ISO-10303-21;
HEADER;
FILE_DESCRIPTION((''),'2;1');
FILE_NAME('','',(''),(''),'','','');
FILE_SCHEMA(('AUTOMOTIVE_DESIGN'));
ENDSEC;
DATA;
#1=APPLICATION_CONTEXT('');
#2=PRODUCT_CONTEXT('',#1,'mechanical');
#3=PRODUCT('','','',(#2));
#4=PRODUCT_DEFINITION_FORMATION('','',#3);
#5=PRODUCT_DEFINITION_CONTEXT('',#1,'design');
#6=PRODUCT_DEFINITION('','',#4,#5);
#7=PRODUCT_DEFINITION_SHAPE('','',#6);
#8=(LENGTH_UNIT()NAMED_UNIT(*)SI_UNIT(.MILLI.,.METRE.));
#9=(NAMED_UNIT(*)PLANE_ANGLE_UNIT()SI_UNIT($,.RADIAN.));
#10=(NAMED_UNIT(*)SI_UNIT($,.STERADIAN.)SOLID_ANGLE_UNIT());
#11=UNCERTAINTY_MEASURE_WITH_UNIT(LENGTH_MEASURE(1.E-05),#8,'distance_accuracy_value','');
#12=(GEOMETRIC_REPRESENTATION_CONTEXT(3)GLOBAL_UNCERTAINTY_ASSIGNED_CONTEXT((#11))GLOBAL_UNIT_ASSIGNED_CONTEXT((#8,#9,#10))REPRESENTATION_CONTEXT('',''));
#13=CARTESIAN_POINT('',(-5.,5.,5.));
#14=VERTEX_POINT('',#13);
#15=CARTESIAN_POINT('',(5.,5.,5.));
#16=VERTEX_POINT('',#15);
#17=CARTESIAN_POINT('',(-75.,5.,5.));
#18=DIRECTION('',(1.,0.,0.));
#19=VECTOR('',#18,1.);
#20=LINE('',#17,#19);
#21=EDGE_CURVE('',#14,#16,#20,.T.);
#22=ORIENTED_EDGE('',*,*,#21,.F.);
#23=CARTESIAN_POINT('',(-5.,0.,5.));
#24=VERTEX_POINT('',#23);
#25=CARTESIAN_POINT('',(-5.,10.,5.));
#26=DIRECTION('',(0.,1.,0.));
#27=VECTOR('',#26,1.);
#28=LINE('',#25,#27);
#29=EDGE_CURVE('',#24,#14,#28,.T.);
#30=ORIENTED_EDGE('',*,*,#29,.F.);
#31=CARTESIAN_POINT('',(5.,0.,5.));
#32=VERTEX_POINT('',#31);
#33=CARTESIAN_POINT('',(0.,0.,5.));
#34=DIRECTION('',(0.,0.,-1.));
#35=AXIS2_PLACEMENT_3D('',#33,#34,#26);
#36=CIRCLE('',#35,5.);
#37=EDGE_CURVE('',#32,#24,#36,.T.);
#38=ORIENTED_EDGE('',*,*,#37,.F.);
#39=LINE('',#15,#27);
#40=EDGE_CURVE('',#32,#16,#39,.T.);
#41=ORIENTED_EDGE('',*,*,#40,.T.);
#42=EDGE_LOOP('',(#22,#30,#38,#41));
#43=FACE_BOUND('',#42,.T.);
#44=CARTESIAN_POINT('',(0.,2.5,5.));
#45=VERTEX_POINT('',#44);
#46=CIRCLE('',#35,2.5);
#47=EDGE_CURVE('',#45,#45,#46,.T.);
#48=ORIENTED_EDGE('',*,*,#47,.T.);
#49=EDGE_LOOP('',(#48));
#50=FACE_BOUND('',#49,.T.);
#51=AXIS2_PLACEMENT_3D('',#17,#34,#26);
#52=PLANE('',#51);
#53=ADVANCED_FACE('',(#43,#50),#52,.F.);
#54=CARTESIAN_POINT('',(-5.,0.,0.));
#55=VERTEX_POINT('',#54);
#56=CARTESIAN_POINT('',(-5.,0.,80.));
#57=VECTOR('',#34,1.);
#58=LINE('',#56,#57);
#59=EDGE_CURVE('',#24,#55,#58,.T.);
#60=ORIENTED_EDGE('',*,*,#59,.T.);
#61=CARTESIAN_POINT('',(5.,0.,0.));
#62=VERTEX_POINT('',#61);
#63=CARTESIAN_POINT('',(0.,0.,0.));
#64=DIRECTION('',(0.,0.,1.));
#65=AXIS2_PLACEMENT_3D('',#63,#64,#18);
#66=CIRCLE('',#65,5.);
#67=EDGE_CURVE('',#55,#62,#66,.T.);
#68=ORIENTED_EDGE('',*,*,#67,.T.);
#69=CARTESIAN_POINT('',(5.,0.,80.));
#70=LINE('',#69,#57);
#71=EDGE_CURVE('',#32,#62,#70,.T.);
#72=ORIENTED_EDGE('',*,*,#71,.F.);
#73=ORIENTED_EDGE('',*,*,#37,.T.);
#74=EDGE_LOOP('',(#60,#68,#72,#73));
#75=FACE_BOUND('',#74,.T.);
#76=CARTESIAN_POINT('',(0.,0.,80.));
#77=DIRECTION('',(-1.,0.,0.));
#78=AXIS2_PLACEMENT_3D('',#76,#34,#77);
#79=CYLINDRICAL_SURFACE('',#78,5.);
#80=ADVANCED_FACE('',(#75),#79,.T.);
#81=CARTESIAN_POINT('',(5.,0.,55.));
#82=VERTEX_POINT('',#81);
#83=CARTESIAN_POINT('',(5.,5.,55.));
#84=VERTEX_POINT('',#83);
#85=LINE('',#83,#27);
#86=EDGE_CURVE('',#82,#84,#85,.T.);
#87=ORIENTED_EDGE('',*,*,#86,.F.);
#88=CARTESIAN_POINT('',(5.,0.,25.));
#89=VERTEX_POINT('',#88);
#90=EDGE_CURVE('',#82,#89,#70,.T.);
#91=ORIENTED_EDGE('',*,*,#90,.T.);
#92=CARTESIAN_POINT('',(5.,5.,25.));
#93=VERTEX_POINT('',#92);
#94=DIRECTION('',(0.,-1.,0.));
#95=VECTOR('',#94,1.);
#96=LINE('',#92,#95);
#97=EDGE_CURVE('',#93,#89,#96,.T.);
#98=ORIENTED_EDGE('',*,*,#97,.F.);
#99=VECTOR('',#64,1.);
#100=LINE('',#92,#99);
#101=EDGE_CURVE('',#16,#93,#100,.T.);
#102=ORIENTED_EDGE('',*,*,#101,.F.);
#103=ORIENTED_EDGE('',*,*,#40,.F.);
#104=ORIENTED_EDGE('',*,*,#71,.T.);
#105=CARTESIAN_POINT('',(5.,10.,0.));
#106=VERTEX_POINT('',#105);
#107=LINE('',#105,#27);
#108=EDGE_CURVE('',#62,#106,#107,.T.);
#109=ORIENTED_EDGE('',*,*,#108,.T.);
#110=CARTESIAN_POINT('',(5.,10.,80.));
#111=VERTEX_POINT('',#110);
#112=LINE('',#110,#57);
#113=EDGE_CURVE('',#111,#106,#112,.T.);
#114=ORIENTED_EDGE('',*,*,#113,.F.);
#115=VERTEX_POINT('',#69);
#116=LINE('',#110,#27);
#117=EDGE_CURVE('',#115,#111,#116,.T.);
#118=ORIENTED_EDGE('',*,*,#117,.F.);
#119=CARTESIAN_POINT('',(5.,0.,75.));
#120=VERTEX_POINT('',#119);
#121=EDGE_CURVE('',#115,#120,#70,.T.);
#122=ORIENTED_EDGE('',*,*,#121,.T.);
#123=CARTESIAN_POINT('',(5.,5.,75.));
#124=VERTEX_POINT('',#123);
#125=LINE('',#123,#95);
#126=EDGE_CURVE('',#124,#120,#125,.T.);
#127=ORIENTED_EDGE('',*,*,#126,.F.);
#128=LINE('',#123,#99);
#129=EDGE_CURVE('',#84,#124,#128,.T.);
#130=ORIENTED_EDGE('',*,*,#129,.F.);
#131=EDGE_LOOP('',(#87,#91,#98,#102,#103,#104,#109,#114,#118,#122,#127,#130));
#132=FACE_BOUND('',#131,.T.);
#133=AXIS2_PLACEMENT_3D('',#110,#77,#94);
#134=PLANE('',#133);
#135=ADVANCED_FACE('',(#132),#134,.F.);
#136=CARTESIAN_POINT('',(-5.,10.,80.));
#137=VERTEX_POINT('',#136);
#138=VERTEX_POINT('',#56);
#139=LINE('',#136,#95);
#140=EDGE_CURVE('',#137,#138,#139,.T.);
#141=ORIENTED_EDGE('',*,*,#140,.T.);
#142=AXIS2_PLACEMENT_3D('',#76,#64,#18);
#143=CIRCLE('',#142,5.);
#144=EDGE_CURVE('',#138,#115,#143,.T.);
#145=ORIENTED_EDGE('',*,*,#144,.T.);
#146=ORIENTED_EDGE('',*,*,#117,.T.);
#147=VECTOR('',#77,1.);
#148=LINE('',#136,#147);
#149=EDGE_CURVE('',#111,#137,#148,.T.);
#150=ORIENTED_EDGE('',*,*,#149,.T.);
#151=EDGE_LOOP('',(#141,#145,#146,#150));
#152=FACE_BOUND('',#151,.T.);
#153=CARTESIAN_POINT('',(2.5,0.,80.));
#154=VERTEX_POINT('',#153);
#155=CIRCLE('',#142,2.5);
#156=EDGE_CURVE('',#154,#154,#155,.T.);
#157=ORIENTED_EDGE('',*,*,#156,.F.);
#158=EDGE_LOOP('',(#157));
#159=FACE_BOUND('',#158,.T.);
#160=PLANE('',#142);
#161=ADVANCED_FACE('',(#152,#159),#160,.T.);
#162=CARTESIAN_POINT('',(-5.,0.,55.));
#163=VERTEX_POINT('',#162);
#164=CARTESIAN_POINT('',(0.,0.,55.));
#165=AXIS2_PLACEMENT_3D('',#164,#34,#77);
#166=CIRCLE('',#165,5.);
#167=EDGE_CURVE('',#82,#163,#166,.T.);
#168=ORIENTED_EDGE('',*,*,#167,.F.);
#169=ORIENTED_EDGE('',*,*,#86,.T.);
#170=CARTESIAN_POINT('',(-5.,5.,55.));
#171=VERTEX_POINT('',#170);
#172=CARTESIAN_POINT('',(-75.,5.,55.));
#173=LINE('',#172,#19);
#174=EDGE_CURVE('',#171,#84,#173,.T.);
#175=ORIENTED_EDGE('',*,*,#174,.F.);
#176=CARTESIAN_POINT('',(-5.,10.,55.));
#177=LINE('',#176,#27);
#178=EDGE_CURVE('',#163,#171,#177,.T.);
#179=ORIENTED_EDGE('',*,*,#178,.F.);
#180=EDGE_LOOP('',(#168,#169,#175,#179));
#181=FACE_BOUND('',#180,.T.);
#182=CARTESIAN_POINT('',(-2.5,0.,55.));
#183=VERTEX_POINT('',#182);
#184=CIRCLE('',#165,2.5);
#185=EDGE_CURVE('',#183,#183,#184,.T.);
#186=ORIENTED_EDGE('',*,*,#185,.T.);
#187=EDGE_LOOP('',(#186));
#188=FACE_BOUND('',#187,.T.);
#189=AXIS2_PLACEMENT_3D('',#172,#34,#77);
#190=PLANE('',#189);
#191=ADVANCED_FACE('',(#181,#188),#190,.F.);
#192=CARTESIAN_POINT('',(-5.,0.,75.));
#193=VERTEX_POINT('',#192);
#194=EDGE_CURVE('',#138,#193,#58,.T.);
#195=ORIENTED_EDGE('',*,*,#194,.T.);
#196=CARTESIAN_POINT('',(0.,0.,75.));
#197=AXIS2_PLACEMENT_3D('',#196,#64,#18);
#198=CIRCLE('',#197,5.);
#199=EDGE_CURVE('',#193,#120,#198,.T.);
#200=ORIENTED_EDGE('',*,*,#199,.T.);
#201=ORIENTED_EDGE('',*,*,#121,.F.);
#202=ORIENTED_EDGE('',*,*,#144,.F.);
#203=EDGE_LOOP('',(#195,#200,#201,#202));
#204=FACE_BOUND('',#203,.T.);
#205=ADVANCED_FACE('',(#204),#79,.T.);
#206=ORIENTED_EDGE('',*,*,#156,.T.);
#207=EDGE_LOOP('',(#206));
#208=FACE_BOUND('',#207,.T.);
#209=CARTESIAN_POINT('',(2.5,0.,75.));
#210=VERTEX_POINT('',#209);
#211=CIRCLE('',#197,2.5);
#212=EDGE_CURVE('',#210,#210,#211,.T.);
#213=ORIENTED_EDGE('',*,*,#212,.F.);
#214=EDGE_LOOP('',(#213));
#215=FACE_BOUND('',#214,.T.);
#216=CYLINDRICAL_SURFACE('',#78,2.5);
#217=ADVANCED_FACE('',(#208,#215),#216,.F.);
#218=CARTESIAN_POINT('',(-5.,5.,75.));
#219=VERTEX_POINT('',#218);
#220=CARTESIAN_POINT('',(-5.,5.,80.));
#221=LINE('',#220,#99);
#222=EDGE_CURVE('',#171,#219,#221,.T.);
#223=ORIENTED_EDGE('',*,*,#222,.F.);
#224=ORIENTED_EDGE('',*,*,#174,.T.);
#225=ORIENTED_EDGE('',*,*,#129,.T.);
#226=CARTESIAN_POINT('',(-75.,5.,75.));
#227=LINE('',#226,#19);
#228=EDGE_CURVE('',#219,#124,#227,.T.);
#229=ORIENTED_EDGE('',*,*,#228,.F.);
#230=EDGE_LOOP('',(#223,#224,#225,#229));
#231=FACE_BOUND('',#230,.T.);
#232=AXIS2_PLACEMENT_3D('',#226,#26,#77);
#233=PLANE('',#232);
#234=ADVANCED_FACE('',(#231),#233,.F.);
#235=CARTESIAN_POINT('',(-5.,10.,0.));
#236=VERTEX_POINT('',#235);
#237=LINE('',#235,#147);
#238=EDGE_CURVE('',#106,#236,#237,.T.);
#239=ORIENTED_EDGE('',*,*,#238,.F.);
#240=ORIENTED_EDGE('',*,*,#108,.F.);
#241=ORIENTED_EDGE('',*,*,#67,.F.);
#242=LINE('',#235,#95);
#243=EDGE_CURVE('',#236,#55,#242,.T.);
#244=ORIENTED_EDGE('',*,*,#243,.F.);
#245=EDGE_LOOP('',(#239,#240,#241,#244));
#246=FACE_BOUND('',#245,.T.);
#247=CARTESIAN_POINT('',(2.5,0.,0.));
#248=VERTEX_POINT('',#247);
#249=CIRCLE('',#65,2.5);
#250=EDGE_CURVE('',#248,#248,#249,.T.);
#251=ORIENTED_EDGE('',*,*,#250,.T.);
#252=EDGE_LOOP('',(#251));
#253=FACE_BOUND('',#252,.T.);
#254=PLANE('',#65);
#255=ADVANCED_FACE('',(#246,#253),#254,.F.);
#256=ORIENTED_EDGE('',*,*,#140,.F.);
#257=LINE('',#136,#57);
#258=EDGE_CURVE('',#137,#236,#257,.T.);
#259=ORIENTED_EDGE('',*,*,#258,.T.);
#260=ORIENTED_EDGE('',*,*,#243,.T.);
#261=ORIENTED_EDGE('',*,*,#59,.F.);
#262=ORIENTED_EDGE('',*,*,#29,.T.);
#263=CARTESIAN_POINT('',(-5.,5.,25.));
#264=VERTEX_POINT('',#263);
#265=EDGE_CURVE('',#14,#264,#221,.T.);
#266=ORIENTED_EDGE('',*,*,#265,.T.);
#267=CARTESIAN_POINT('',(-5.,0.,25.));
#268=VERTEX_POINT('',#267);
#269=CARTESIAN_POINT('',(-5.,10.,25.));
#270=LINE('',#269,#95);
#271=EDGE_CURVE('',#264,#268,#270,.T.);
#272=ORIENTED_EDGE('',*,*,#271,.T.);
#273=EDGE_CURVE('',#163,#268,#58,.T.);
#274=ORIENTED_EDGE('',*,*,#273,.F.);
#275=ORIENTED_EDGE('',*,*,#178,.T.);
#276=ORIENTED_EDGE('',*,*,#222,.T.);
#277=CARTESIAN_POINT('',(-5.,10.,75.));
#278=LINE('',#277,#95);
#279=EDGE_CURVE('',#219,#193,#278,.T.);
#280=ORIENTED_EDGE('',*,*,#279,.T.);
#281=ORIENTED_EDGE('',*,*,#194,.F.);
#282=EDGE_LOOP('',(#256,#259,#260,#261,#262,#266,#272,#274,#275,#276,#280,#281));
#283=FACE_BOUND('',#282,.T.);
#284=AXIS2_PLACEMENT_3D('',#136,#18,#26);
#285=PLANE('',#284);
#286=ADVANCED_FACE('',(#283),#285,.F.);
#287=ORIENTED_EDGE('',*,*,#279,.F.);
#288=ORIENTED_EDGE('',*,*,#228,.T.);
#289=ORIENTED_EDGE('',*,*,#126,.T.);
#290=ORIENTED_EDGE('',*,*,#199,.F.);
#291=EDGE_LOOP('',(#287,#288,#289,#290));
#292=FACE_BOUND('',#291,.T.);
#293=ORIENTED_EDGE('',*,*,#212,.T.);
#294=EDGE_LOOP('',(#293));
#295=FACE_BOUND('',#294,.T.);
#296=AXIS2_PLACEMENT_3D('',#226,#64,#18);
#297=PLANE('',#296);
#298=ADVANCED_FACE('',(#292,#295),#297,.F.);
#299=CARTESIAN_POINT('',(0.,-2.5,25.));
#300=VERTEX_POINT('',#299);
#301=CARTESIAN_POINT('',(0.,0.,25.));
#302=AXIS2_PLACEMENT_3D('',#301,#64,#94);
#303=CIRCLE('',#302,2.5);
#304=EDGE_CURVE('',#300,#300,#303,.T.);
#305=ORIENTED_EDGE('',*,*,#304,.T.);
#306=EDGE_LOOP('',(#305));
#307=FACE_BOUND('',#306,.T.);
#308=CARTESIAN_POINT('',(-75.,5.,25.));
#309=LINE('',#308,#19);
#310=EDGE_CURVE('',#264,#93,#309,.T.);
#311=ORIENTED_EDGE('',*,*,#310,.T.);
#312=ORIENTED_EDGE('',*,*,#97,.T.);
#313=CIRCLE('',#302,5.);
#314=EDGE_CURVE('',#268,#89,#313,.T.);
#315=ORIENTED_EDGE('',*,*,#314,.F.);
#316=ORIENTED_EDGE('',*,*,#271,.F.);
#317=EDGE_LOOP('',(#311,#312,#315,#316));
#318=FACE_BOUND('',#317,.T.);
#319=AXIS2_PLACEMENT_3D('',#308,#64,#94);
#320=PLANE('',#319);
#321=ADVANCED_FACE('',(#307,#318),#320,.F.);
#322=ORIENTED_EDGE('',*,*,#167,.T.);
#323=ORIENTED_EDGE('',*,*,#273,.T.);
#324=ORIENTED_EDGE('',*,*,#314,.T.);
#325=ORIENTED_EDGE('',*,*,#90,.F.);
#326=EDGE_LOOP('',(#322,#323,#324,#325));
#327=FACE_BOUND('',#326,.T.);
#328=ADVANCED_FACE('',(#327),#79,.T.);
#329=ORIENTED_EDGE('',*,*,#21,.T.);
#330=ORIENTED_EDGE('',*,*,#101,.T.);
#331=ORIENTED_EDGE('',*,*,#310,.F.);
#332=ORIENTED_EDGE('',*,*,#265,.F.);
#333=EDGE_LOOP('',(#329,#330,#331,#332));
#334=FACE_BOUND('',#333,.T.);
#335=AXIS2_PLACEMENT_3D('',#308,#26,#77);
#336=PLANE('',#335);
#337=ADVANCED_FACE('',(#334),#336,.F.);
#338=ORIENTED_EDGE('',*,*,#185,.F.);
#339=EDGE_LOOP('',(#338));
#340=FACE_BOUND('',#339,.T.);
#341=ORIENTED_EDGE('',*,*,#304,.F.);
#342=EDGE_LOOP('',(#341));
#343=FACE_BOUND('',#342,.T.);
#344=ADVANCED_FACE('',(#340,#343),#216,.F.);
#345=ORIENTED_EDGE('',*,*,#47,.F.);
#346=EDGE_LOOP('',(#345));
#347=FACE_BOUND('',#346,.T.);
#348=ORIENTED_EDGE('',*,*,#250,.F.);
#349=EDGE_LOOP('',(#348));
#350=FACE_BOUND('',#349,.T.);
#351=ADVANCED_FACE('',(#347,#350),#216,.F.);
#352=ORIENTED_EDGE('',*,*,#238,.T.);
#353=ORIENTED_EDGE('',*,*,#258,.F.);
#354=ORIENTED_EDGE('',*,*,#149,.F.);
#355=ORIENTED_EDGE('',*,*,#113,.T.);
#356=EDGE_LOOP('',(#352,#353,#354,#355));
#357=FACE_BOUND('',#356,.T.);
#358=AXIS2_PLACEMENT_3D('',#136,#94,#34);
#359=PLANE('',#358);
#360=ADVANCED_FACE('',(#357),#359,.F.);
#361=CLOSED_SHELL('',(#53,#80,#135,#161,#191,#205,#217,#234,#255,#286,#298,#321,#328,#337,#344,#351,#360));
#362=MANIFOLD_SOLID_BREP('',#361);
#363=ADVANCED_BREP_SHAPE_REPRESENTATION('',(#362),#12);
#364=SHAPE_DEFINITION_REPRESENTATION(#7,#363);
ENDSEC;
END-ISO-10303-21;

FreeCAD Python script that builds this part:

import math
import FreeCAD as App
import Part
import Sketcher

V = App.Vector

doc = App.newDocument("Part")
body = doc.addObject("PartDesign::Body", "Body")

sketch1 = doc.addObject("Sketcher::SketchObject", "Sketch")
body.addObject(sketch1)
sketch1.AttachmentSupport = (doc.XY_Plane, [""])
sketch1.MapMode = "FlatFace"
sketch1.addGeometry(Part.LineSegment(V(5, 10, 0), V(-5, 10, 0)), False)
sketch1.addGeometry(Part.LineSegment(V(-5, 10, 0), V(-5, 0, 0)), False)
sketch1.addGeometry(Part.ArcOfCircle(Part.Circle(V(0, 0, 0), V(0, 0, 1), 5), math.radians(180), math.radians(360)), False)
sketch1.addGeometry(Part.LineSegment(V(5, 0, 0), V(5, 10, 0)), False)
sketch1.addGeometry(Part.Circle(V(0, 0, 0), V(0, 0, 1), 2.5), False)
sketch1.addConstraint(Sketcher.Constraint("Coincident", 0, 2, 1, 1))
sketch1.addConstraint(Sketcher.Constraint("Tangent", 1, 2, 2, 1))
sketch1.addConstraint(Sketcher.Constraint("Tangent", 2, 2, 3, 1))
sketch1.addConstraint(Sketcher.Constraint("Coincident", 3, 2, 0, 1))
sketch1.addConstraint(Sketcher.Constraint("Horizontal", 0))
sketch1.addConstraint(Sketcher.Constraint("Vertical", 1))
sketch1.addConstraint(Sketcher.Constraint("Vertical", 3))
sketch1.addConstraint(Sketcher.Constraint("Coincident", 2, 3, -1, 1))
sketch1.addConstraint(Sketcher.Constraint("Coincident", 4, 3, -1, 1))
sketch1.addConstraint(Sketcher.Constraint("Equal", 0, 1))
sketch1.addConstraint(Sketcher.Constraint("Diameter", 4, 5.0))
sketch1.addConstraint(Sketcher.Constraint("Radius", 2, 5.0))
pad1 = doc.addObject("PartDesign::Pad", "Pad")
body.addObject(pad1)
pad1.Profile = sketch1
pad1.Length = 80

sketch2 = doc.addObject("Sketcher::SketchObject", "Sketch001")
body.addObject(sketch2)
sketch2.AttachmentSupport = (doc.YZ_Plane, [""])
sketch2.MapMode = "FlatFace"
sketch2.AttachmentOffset = App.Placement(V(0, 0, 5), App.Rotation())
sketch2.addGeometry(Part.LineSegment(V(5, 25, 0), V(-10, 25, 0)), False)
sketch2.addGeometry(Part.LineSegment(V(-10, 25, 0), V(-10, 5, 0)), False)
sketch2.addGeometry(Part.LineSegment(V(-10, 5, 0), V(5, 5, 0)), False)
sketch2.addGeometry(Part.LineSegment(V(5, 5, 0), V(5, 25, 0)), False)
sketch2.addGeometry(Part.LineSegment(V(5, 75, 0), V(-10, 75, 0)), False)
sketch2.addGeometry(Part.LineSegment(V(-10, 75, 0), V(-10, 55, 0)), False)
sketch2.addGeometry(Part.LineSegment(V(-10, 55, 0), V(5, 55, 0)), False)
sketch2.addGeometry(Part.LineSegment(V(5, 55, 0), V(5, 75, 0)), False)
sketch2.addConstraint(Sketcher.Constraint("Coincident", 0, 2, 1, 1))
sketch2.addConstraint(Sketcher.Constraint("Coincident", 1, 2, 2, 1))
sketch2.addConstraint(Sketcher.Constraint("Coincident", 2, 2, 3, 1))
sketch2.addConstraint(Sketcher.Constraint("Coincident", 3, 2, 0, 1))
sketch2.addConstraint(Sketcher.Constraint("Coincident", 4, 2, 5, 1))
sketch2.addConstraint(Sketcher.Constraint("Coincident", 5, 2, 6, 1))
sketch2.addConstraint(Sketcher.Constraint("Coincident", 6, 2, 7, 1))
sketch2.addConstraint(Sketcher.Constraint("Coincident", 7, 2, 4, 1))
sketch2.addConstraint(Sketcher.Constraint("Horizontal", 0))
sketch2.addConstraint(Sketcher.Constraint("Vertical", 1))
sketch2.addConstraint(Sketcher.Constraint("Horizontal", 2))
sketch2.addConstraint(Sketcher.Constraint("Vertical", 3))
sketch2.addConstraint(Sketcher.Constraint("Horizontal", 4))
sketch2.addConstraint(Sketcher.Constraint("Vertical", 5))
sketch2.addConstraint(Sketcher.Constraint("Horizontal", 6))
sketch2.addConstraint(Sketcher.Constraint("Vertical", 7))
sketch2.addConstraint(Sketcher.Constraint("Vertical", 1, 2, 4, 2))
sketch2.addConstraint(Sketcher.Constraint("Vertical", 3, 2, 6, 2))
sketch2.addConstraint(Sketcher.Constraint("Equal", 3, 5))
sketch2.addConstraint(Sketcher.Constraint("DistanceX", 0, 2, 0, 1, 15.0))
sketch2.addConstraint(Sketcher.Constraint("DistanceY", 1, 2, 1, 1, 20.0))
sketch2.addConstraint(Sketcher.Constraint("DistanceX", 0, 2, -1, 1, 10.0))
sketch2.addConstraint(Sketcher.Constraint("DistanceY", -1, 1, 0, 2, 25.0))
sketch2.addConstraint(Sketcher.Constraint("DistanceY", -1, 1, 4, 2, 75.0))
pocket1 = doc.addObject("PartDesign::Pocket", "Pocket")
body.addObject(pocket1)
pocket1.Profile = sketch2
pocket1.Length = 80

doc.recompute()
